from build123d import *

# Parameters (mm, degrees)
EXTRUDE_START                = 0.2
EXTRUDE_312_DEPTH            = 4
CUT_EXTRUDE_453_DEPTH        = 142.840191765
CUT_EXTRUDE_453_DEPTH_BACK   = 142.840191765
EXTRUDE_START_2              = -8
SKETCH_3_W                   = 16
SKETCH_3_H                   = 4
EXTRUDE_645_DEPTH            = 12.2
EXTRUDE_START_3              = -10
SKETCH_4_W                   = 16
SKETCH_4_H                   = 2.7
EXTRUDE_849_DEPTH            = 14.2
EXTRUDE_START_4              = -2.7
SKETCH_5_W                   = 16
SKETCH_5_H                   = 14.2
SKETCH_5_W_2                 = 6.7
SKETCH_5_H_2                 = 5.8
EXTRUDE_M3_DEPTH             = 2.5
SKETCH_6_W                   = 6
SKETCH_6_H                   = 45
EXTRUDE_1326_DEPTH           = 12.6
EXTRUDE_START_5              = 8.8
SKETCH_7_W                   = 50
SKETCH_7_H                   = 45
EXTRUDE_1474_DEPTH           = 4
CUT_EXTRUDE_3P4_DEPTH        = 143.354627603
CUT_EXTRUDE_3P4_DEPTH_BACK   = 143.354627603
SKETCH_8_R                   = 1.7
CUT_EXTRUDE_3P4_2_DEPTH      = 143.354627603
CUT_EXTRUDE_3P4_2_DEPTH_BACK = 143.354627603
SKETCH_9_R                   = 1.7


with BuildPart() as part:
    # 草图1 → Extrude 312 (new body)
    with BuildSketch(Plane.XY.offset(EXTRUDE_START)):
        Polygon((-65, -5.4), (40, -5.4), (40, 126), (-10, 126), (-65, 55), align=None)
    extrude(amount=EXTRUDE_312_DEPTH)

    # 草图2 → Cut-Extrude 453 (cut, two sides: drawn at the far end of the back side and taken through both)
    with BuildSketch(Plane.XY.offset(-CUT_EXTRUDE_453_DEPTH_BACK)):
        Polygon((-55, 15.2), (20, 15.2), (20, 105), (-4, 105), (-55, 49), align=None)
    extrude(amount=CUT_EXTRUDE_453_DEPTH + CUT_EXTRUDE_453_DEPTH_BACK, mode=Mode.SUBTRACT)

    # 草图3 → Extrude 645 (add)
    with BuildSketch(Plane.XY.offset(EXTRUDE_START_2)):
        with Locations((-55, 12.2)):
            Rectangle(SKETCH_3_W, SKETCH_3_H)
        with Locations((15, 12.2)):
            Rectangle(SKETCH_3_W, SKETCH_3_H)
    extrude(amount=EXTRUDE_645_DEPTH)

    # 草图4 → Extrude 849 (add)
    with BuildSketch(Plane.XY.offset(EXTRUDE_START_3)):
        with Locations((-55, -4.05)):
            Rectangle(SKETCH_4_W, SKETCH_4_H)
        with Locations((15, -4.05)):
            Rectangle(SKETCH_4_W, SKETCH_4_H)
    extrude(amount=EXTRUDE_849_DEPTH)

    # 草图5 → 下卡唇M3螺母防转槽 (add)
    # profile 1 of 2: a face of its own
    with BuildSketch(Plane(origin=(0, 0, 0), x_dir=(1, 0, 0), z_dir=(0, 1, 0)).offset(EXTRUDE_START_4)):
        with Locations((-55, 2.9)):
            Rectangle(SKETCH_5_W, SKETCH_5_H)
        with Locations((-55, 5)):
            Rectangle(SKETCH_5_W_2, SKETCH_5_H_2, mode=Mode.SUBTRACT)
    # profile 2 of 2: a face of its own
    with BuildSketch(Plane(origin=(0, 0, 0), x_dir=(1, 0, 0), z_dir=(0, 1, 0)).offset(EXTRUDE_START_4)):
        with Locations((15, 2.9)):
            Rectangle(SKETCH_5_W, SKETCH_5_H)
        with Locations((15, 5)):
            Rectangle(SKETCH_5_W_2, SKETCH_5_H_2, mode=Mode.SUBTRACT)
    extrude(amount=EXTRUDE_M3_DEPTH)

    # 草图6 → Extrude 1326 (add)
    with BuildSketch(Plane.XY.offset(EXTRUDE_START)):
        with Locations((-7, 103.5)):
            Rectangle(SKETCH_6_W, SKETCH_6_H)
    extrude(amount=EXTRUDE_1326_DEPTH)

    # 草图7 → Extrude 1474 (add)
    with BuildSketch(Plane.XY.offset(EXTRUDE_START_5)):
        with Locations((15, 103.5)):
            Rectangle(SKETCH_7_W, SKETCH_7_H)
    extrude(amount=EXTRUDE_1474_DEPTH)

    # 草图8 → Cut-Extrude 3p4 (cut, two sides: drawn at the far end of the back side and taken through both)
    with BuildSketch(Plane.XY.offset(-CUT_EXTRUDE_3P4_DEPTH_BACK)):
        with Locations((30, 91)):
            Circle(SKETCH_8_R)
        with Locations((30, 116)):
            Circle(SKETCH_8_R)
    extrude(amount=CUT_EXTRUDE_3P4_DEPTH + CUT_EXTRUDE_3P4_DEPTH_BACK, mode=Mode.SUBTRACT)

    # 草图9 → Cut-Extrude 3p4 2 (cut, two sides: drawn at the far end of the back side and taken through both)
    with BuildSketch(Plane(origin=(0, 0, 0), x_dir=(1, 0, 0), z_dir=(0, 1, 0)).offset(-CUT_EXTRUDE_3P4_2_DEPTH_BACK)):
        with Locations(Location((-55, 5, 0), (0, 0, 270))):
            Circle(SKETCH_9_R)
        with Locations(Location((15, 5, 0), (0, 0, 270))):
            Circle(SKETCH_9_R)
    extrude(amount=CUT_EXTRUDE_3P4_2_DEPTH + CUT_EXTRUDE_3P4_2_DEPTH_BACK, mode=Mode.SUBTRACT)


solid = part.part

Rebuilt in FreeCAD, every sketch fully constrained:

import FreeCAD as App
import Part
import Sketcher
from FreeCAD import Vector
Q = App.Units.Quantity


def add_polygon(sketch, points):
    """Adds a closed chain of lines whose ends are joined by coincident constraints."""
    first, n = sketch.GeometryCount, len(points)
    for a, b in zip(points, points[1:] + points[:1]):
        sketch.addGeometry(Part.LineSegment(App.Vector(*a, 0), App.Vector(*b, 0)), False)
    for i in range(n):
        sketch.addConstraint(Sketcher.Constraint("Coincident", first + i, 2, first + (i + 1) % n, 1))

doc = App.newDocument("Part")
params = doc.addObject("Spreadsheet::Sheet", "Params")
for row, (alias, value) in enumerate([
    ("sketch1_width", "105 mm"),
    ("sketch1_width2", "50 mm"),
    ("sketch1_height", "131.4 mm"),
    ("sketch1_height2", "60.4 mm"),
    ("pad1_length", "4 mm"),
    ("sketch2_width", "75 mm"),
    ("sketch2_width2", "24 mm"),
    ("sketch2_height", "89.8 mm"),
    ("sketch2_height2", "33.8 mm"),
    ("sketch3_width", "16 mm"),
    ("sketch3_height", "4 mm"),
    ("pad2_length", "12.2 mm"),
    ("sketch4_width", "16 mm"),
    ("sketch4_height", "2.7 mm"),
    ("pad3_length", "14.2 mm"),
    ("sketch5_width", "16 mm"),
    ("sketch5_width2", "6.7 mm"),
    ("sketch5_height", "14.2 mm"),
    ("sketch5_height2", "5.8 mm"),
    ("pad4_length", "2.5 mm"),
    ("sketch6_width", "6 mm"),
    ("sketch6_height", "45 mm"),
    ("pad5_length", "12.6 mm"),
    ("sketch7_width", "50 mm"),
    ("sketch7_height", "45 mm"),
    ("pad6_length", "4 mm"),
    ("sketch8_diameter", "3.4 mm"),
    ("sketch9_diameter", "3.4 mm"),
], start=1):
    params.set(f"A{row}", alias)
    params.set(f"B{row}", "=" + value)
    params.setAlias(f"B{row}", alias)

body = doc.addObject("PartDesign::Body", "Body")

sketch1 = body.newObject("Sketcher::SketchObject", "Sketch")
sketch1.AttachmentSupport = (doc.getObject("XY_Plane"), [""])
sketch1.MapMode = "FlatFace"
sketch1.AttachmentOffset = App.Placement(Vector(0, 0, 0.2), App.Rotation())
add_polygon(sketch1, [(-65, -5), (40, -5), (40, 126), (-10, 126), (-65, 55)])
sketch1.addConstraint(Sketcher.Constraint("Horizontal", 0))
sketch1.addConstraint(Sketcher.Constraint("Vertical", 1))
sketch1.addConstraint(Sketcher.Constraint("Horizontal", 2))
sketch1.addConstraint(Sketcher.Constraint("Vertical", 4))
sketch1.addConstraint(Sketcher.Constraint("DistanceX", 0, 1, 0, 2, Q("105 mm")))
sketch1.addConstraint(Sketcher.Constraint("DistanceX", 2, 2, 2, 1, Q("50 mm")))
sketch1.addConstraint(Sketcher.Constraint("DistanceY", 1, 1, 1, 2, Q("131.4 mm")))
sketch1.addConstraint(Sketcher.Constraint("DistanceY", 4, 2, 4, 1, Q("60.4 mm")))
sketch1.addConstraint(Sketcher.Constraint("DistanceX", -1, 1, 0, 2, Q("40 mm")))
sketch1.addConstraint(Sketcher.Constraint("DistanceY", -1, 1, 1, 2, Q("126 mm")))
sketch1.setExpression("Constraints[9]", "Params.sketch1_width")
sketch1.setExpression("Constraints[10]", "Params.sketch1_width2")
sketch1.setExpression("Constraints[11]", "Params.sketch1_height")
sketch1.setExpression("Constraints[12]", "Params.sketch1_height2")
pad1 = body.newObject("PartDesign::Pad", "Pad")
pad1.Profile = sketch1
pad1.setExpression("Length", "Params.pad1_length")

sketch2 = body.newObject("Sketcher::SketchObject", "Sketch001")
sketch2.AttachmentSupport = (doc.getObject("XY_Plane"), [""])
sketch2.MapMode = "FlatFace"
add_polygon(sketch2, [(-55, 15), (20, 15), (20, 105), (-4, 105), (-55, 49)])
sketch2.addConstraint(Sketcher.Constraint("Horizontal", 0))
sketch2.addConstraint(Sketcher.Constraint("Vertical", 1))
sketch2.addConstraint(Sketcher.Constraint("Horizontal", 2))
sketch2.addConstraint(Sketcher.Constraint("Vertical", 4))
sketch2.addConstraint(Sketcher.Constraint("DistanceX", 0, 1, 0, 2, Q("75 mm")))
sketch2.addConstraint(Sketcher.Constraint("DistanceX", 2, 2, 2, 1, Q("24 mm")))
sketch2.addConstraint(Sketcher.Constraint("DistanceY", 1, 1, 1, 2, Q("89.8 mm")))
sketch2.addConstraint(Sketcher.Constraint("DistanceY", 4, 2, 4, 1, Q("33.8 mm")))
sketch2.addConstraint(Sketcher.Constraint("DistanceX", -1, 1, 0, 2, Q("20 mm")))
sketch2.addConstraint(Sketcher.Constraint("DistanceY", -1, 1, 1, 2, Q("105 mm")))
sketch2.setExpression("Constraints[9]", "Params.sketch2_width")
sketch2.setExpression("Constraints[10]", "Params.sketch2_width2")
sketch2.setExpression("Constraints[11]", "Params.sketch2_height")
sketch2.setExpression("Constraints[12]", "Params.sketch2_height2")
pocket1 = body.newObject("PartDesign::Pocket", "Pocket")
pocket1.Profile = sketch2
pocket1.Type = "ThroughAll"
pocket1.Midplane = True

sketch3 = body.newObject("Sketcher::SketchObject", "Sketch002")
sketch3.AttachmentSupport = (doc.getObject("XY_Plane"), [""])
sketch3.MapMode = "FlatFace"
sketch3.AttachmentOffset = App.Placement(Vector(0, 0, -8), App.Rotation())
add_polygon(sketch3, [(-63, 14.2), (-63, 10.2), (-47, 10.2), (-47, 14.2)])
add_polygon(sketch3, [(7, 14.2), (7, 10.2), (23, 10.2), (23, 14.2)])
sketch3.addConstraint(Sketcher.Constraint("Vertical", 0))
sketch3.addConstraint(Sketcher.Constraint("Horizontal", 1))
sketch3.addConstraint(Sketcher.Constraint("Vertical", 2))
sketch3.addConstraint(Sketcher.Constraint("Horizontal", 3))
sketch3.addConstraint(Sketcher.Constraint("Vertical", 4))
sketch3.addConstraint(Sketcher.Constraint("Horizontal", 5))
sketch3.addConstraint(Sketcher.Constraint("Vertical", 6))
sketch3.addConstraint(Sketcher.Constraint("Horizontal", 7))
sketch3.addConstraint(Sketcher.Constraint("Horizontal", 1, 2, 4, 2))
sketch3.addConstraint(Sketcher.Constraint("Horizontal", 3, 2, 6, 2))
sketch3.addConstraint(Sketcher.Constraint("Equal", 3, 5))
sketch3.addConstraint(Sketcher.Constraint("DistanceX", 1, 1, 1, 2, Q("16 mm")))
sketch3.addConstraint(Sketcher.Constraint("DistanceY", 0, 2, 0, 1, Q("4 mm")))
sketch3.addConstraint(Sketcher.Constraint("DistanceX", 0, 2, -1, 1, Q("63 mm")))
sketch3.addConstraint(Sketcher.Constraint("DistanceX", -1, 1, 4, 2, Q("7 mm")))
sketch3.addConstraint(Sketcher.Constraint("DistanceY", -1, 1, 0, 2, Q("10.2 mm")))
sketch3.setExpression("Constraints[19]", "Params.sketch3_width")
sketch3.setExpression("Constraints[20]", "Params.sketch3_height")
pad2 = body.newObject("PartDesign::Pad", "Pad001")
pad2.Profile = sketch3
pad2.setExpression("Length", "Params.pad2_length")

sketch4 = body.newObject("Sketcher::SketchObject", "Sketch003")
sketch4.AttachmentSupport = (doc.getObject("XY_Plane"), [""])
sketch4.MapMode = "FlatFace"
sketch4.AttachmentOffset = App.Placement(Vector(0, 0, -10), App.Rotation())
add_polygon(sketch4, [(-63, -2.7), (-63, -5.4), (-47, -5.4), (-47, -2.7)])
add_polygon(sketch4, [(7, -2.7), (7, -5.4), (23, -5.4), (23, -2.7)])
sketch4.addConstraint(Sketcher.Constraint("Vertical", 0))
sketch4.addConstraint(Sketcher.Constraint("Horizontal", 1))
sketch4.addConstraint(Sketcher.Constraint("Vertical", 2))
sketch4.addConstraint(Sketcher.Constraint("Horizontal", 3))
sketch4.addConstraint(Sketcher.Constraint("Vertical", 4))
sketch4.addConstraint(Sketcher.Constraint("Horizontal", 5))
sketch4.addConstraint(Sketcher.Constraint("Vertical", 6))
sketch4.addConstraint(Sketcher.Constraint("Horizontal", 7))
sketch4.addConstraint(Sketcher.Constraint("Horizontal", 1, 2, 4, 2))
sketch4.addConstraint(Sketcher.Constraint("Horizontal", 3, 2, 6, 2))
sketch4.addConstraint(Sketcher.Constraint("Equal", 3, 5))
sketch4.addConstraint(Sketcher.Constraint("DistanceX", 1, 1, 1, 2, Q("16 mm")))
sketch4.addConstraint(Sketcher.Constraint("DistanceY", 0, 2, 0, 1, Q("2.7 mm")))
sketch4.addConstraint(Sketcher.Constraint("DistanceX", 0, 2, -1, 1, Q("63 mm")))
sketch4.addConstraint(Sketcher.Constraint("DistanceX", -1, 1, 4, 2, Q("7 mm")))
sketch4.addConstraint(Sketcher.Constraint("DistanceY", 0, 2, -1, 1, Q("5.4 mm")))
sketch4.setExpression("Constraints[19]", "Params.sketch4_width")
sketch4.setExpression("Constraints[20]", "Params.sketch4_height")
pad3 = body.newObject("PartDesign::Pad", "Pad002")
pad3.Profile = sketch4
pad3.setExpression("Length", "Params.pad3_length")

sketch5 = body.newObject("Sketcher::SketchObject", "Sketch004")
sketch5.AttachmentSupport = (doc.getObject("XZ_Plane"), [""])
sketch5.MapMode = "FlatFace"
sketch5.AttachmentOffset = App.Placement(Vector(0, 0, 2.7), App.Rotation())
add_polygon(sketch5, [(-63, -10), (-63, 4), (-47, 4), (-47, -10)])
add_polygon(sketch5, [(-52, -2), (-58, -2), (-58, -8), (-52, -8)])
add_polygon(sketch5, [(7, -10), (7, 4), (23, 4), (23, -10)])
add_polygon(sketch5, [(18, -2), (12, -2), (12, -8), (18, -8)])
sketch5.addConstraint(Sketcher.Constraint("Vertical", 0))
sketch5.addConstraint(Sketcher.Constraint("Horizontal", 1))
sketch5.addConstraint(Sketcher.Constraint("Vertical", 2))
sketch5.addConstraint(Sketcher.Constraint("Horizontal", 3))
sketch5.addConstraint(Sketcher.Constraint("Horizontal", 4))
sketch5.addConstraint(Sketcher.Constraint("Vertical", 5))
sketch5.addConstraint(Sketcher.Constraint("Horizontal", 6))
sketch5.addConstraint(Sketcher.Constraint("Vertical", 7))
sketch5.addConstraint(Sketcher.Constraint("Vertical", 8))
sketch5.addConstraint(Sketcher.Constraint("Horizontal", 9))
sketch5.addConstraint(Sketcher.Constraint("Vertical", 10))
sketch5.addConstraint(Sketcher.Constraint("Horizontal", 11))
sketch5.addConstraint(Sketcher.Constraint("Horizontal", 12))
sketch5.addConstraint(Sketcher.Constraint("Vertical", 13))
sketch5.addConstraint(Sketcher.Constraint("Horizontal", 14))
sketch5.addConstraint(Sketcher.Constraint("Vertical", 15))
sketch5.addConstraint(Sketcher.Constraint("Horizontal", 1, 2, 8, 2))
sketch5.addConstraint(Sketcher.Constraint("Horizontal", 3, 2, 10, 2))
sketch5.addConstraint(Sketcher.Constraint("Horizontal", 7, 2, 12, 2))
sketch5.addConstraint(Sketcher.Constraint("Horizontal", 6, 2, 13, 2))
sketch5.addConstraint(Sketcher.Constraint("Equal", 3, 9))
sketch5.addConstraint(Sketcher.Constraint("Equal", 6, 12))
sketch5.addConstraint(Sketcher.Constraint("DistanceX", 1, 1, 1, 2, Q("16 mm")))
sketch5.addConstraint(Sketcher.Constraint("DistanceX", 4, 2, 4, 1, Q("6.7 mm")))
sketch5.addConstraint(Sketcher.Constraint("DistanceY", 0, 1, 0, 2, Q("14.2 mm")))
sketch5.addConstraint(Sketcher.Constraint("DistanceY", 5, 2, 5, 1, Q("5.8 mm")))
sketch5.addConstraint(Sketcher.Constraint("DistanceX", 0, 2, -1, 1, Q("63 mm")))
sketch5.addConstraint(Sketcher.Constraint("DistanceY", 2, 2, -1, 1, Q("10 mm")))
sketch5.addConstraint(Sketcher.Constraint("DistanceX", -1, 1, 8, 2, Q("7 mm")))
sketch5.addConstraint(Sketcher.Constraint("DistanceY", 4, 2, -1, 1, Q("2.1 mm")))
sketch5.addConstraint(Sketcher.Constraint("DistanceX", 4, 2, -1, 1, Q("58.35 mm")))
sketch5.addConstraint(Sketcher.Constraint("DistanceX", -1, 1, 12, 2, Q("11.65 mm")))
sketch5.setExpression("Constraints[38]", "Params.sketch5_width")
sketch5.setExpression("Constraints[39]", "Params.sketch5_width2")
sketch5.setExpression("Constraints[40]", "Params.sketch5_height")
sketch5.setExpression("Constraints[41]", "Params.sketch5_height2")
pad4 = body.newObject("PartDesign::Pad", "Pad003")
pad4.Profile = sketch5
pad4.setExpression("Length", "Params.pad4_length")
pad4.Reversed = True

sketch6 = body.newObject("Sketcher::SketchObject", "Sketch005")
sketch6.AttachmentSupport = (doc.getObject("XY_Plane"), [""])
sketch6.MapMode = "FlatFace"
sketch6.AttachmentOffset = App.Placement(Vector(0, 0, 0.2), App.Rotation())
add_polygon(sketch6, [(-10, 126), (-10, 81), (-4, 81), (-4, 126)])
sketch6.addConstraint(Sketcher.Constraint("Vertical", 0))
sketch6.addConstraint(Sketcher.Constraint("Horizontal", 1))
sketch6.addConstraint(Sketcher.Constraint("Vertical", 2))
sketch6.addConstraint(Sketcher.Constraint("Horizontal", 3))
sketch6.addConstraint(Sketcher.Constraint("DistanceX", 1, 1, 1, 2, Q("6 mm")))
sketch6.addConstraint(Sketcher.Constraint("DistanceY", 0, 2, 0, 1, Q("45 mm")))
sketch6.addConstraint(Sketcher.Constraint("DistanceX", 0, 2, -1, 1, Q("10 mm")))
sketch6.addConstraint(Sketcher.Constraint("DistanceY", -1, 1, 0, 2, Q("81 mm")))
sketch6.setExpression("Constraints[8]", "Params.sketch6_width")
sketch6.setExpression("Constraints[9]", "Params.sketch6_height")
pad5 = body.newObject("PartDesign::Pad", "Pad004")
pad5.Profile = sketch6
pad5.setExpression("Length", "Params.pad5_length")

sketch7 = body.newObject("Sketcher::SketchObject", "Sketch006")
sketch7.AttachmentSupport = (doc.getObject("XY_Plane"), [""])
sketch7.MapMode = "FlatFace"
sketch7.AttachmentOffset = App.Placement(Vector(0, 0, 8.8), App.Rotation())
add_polygon(sketch7, [(-10, 126), (-10, 81), (40, 81), (40, 126)])
sketch7.addConstraint(Sketcher.Constraint("Vertical", 0))
sketch7.addConstraint(Sketcher.Constraint("Horizontal", 1))
sketch7.addConstraint(Sketcher.Constraint("Vertical", 2))
sketch7.addConstraint(Sketcher.Constraint("Horizontal", 3))
sketch7.addConstraint(Sketcher.Constraint("DistanceX", 1, 1, 1, 2, Q("50 mm")))
sketch7.addConstraint(Sketcher.Constraint("DistanceY", 0, 2, 0, 1, Q("45 mm")))
sketch7.addConstraint(Sketcher.Constraint("DistanceX", 0, 2, -1, 1, Q("10 mm")))
sketch7.addConstraint(Sketcher.Constraint("DistanceY", -1, 1, 0, 2, Q("81 mm")))
sketch7.setExpression("Constraints[8]", "Params.sketch7_width")
sketch7.setExpression("Constraints[9]", "Params.sketch7_height")
pad6 = body.newObject("PartDesign::Pad", "Pad005")
pad6.Profile = sketch7
pad6.setExpression("Length", "Params.pad6_length")

sketch8 = body.newObject("Sketcher::SketchObject", "Sketch007")
sketch8.AttachmentSupport = (doc.getObject("XY_Plane"), [""])
sketch8.MapMode = "FlatFace"
sketch8.addGeometry(Part.Circle(Vector(30, 91, 0), Vector(0, 0, 1), 1.7), False)
sketch8.addGeometry(Part.Circle(Vector(30, 116, 0), Vector(0, 0, 1), 1.7), False)
sketch8.addConstraint(Sketcher.Constraint("Equal", 0, 1))
sketch8.addConstraint(Sketcher.Constraint("Vertical", 0, 3, 1, 3))
sketch8.addConstraint(Sketcher.Constraint("Diameter", 0, Q("3.4 mm")))
sketch8.addConstraint(Sketcher.Constraint("DistanceX", -1, 1, 0, 3, Q("30 mm")))
sketch8.addConstraint(Sketcher.Constraint("DistanceY", -1, 1, 0, 3, Q("91 mm")))
sketch8.addConstraint(Sketcher.Constraint("DistanceY", -1, 1, 1, 3, Q("116 mm")))
sketch8.setExpression("Constraints[2]", "Params.sketch8_diameter")
pocket2 = body.newObject("PartDesign::Pocket", "Pocket001")
pocket2.Profile = sketch8
pocket2.Type = "ThroughAll"
pocket2.Midplane = True

sketch9 = body.newObject("Sketcher::SketchObject", "Sketch008")
sketch9.AttachmentSupport = (doc.getObject("XZ_Plane"), [""])
sketch9.MapMode = "FlatFace"
sketch9.addGeometry(Part.Circle(Vector(-55, -5, 0), Vector(0, 0, 1), 1.7), False)
sketch9.addGeometry(Part.Circle(Vector(15, -5, 0), Vector(0, 0, 1), 1.7), False)
sketch9.addConstraint(Sketcher.Constraint("Equal", 0, 1))
sketch9.addConstraint(Sketcher.Constraint("Horizontal", 0, 3, 1, 3))
sketch9.addConstraint(Sketcher.Constraint("Diameter", 0, Q("3.4 mm")))
sketch9.addConstraint(Sketcher.Constraint("DistanceX", 0, 3, -1, 1, Q("55 mm")))
sketch9.addConstraint(Sketcher.Constraint("DistanceY", 0, 3, -1, 1, Q("5 mm")))
sketch9.addConstraint(Sketcher.Constraint("DistanceX", -1, 1, 1, 3, Q("15 mm")))
sketch9.setExpression("Constraints[2]", "Params.sketch9_diameter")
pocket3 = body.newObject("PartDesign::Pocket", "Pocket002")
pocket3.Profile = sketch9
pocket3.Type = "ThroughAll"
pocket3.Midplane = True

doc.recompute()
